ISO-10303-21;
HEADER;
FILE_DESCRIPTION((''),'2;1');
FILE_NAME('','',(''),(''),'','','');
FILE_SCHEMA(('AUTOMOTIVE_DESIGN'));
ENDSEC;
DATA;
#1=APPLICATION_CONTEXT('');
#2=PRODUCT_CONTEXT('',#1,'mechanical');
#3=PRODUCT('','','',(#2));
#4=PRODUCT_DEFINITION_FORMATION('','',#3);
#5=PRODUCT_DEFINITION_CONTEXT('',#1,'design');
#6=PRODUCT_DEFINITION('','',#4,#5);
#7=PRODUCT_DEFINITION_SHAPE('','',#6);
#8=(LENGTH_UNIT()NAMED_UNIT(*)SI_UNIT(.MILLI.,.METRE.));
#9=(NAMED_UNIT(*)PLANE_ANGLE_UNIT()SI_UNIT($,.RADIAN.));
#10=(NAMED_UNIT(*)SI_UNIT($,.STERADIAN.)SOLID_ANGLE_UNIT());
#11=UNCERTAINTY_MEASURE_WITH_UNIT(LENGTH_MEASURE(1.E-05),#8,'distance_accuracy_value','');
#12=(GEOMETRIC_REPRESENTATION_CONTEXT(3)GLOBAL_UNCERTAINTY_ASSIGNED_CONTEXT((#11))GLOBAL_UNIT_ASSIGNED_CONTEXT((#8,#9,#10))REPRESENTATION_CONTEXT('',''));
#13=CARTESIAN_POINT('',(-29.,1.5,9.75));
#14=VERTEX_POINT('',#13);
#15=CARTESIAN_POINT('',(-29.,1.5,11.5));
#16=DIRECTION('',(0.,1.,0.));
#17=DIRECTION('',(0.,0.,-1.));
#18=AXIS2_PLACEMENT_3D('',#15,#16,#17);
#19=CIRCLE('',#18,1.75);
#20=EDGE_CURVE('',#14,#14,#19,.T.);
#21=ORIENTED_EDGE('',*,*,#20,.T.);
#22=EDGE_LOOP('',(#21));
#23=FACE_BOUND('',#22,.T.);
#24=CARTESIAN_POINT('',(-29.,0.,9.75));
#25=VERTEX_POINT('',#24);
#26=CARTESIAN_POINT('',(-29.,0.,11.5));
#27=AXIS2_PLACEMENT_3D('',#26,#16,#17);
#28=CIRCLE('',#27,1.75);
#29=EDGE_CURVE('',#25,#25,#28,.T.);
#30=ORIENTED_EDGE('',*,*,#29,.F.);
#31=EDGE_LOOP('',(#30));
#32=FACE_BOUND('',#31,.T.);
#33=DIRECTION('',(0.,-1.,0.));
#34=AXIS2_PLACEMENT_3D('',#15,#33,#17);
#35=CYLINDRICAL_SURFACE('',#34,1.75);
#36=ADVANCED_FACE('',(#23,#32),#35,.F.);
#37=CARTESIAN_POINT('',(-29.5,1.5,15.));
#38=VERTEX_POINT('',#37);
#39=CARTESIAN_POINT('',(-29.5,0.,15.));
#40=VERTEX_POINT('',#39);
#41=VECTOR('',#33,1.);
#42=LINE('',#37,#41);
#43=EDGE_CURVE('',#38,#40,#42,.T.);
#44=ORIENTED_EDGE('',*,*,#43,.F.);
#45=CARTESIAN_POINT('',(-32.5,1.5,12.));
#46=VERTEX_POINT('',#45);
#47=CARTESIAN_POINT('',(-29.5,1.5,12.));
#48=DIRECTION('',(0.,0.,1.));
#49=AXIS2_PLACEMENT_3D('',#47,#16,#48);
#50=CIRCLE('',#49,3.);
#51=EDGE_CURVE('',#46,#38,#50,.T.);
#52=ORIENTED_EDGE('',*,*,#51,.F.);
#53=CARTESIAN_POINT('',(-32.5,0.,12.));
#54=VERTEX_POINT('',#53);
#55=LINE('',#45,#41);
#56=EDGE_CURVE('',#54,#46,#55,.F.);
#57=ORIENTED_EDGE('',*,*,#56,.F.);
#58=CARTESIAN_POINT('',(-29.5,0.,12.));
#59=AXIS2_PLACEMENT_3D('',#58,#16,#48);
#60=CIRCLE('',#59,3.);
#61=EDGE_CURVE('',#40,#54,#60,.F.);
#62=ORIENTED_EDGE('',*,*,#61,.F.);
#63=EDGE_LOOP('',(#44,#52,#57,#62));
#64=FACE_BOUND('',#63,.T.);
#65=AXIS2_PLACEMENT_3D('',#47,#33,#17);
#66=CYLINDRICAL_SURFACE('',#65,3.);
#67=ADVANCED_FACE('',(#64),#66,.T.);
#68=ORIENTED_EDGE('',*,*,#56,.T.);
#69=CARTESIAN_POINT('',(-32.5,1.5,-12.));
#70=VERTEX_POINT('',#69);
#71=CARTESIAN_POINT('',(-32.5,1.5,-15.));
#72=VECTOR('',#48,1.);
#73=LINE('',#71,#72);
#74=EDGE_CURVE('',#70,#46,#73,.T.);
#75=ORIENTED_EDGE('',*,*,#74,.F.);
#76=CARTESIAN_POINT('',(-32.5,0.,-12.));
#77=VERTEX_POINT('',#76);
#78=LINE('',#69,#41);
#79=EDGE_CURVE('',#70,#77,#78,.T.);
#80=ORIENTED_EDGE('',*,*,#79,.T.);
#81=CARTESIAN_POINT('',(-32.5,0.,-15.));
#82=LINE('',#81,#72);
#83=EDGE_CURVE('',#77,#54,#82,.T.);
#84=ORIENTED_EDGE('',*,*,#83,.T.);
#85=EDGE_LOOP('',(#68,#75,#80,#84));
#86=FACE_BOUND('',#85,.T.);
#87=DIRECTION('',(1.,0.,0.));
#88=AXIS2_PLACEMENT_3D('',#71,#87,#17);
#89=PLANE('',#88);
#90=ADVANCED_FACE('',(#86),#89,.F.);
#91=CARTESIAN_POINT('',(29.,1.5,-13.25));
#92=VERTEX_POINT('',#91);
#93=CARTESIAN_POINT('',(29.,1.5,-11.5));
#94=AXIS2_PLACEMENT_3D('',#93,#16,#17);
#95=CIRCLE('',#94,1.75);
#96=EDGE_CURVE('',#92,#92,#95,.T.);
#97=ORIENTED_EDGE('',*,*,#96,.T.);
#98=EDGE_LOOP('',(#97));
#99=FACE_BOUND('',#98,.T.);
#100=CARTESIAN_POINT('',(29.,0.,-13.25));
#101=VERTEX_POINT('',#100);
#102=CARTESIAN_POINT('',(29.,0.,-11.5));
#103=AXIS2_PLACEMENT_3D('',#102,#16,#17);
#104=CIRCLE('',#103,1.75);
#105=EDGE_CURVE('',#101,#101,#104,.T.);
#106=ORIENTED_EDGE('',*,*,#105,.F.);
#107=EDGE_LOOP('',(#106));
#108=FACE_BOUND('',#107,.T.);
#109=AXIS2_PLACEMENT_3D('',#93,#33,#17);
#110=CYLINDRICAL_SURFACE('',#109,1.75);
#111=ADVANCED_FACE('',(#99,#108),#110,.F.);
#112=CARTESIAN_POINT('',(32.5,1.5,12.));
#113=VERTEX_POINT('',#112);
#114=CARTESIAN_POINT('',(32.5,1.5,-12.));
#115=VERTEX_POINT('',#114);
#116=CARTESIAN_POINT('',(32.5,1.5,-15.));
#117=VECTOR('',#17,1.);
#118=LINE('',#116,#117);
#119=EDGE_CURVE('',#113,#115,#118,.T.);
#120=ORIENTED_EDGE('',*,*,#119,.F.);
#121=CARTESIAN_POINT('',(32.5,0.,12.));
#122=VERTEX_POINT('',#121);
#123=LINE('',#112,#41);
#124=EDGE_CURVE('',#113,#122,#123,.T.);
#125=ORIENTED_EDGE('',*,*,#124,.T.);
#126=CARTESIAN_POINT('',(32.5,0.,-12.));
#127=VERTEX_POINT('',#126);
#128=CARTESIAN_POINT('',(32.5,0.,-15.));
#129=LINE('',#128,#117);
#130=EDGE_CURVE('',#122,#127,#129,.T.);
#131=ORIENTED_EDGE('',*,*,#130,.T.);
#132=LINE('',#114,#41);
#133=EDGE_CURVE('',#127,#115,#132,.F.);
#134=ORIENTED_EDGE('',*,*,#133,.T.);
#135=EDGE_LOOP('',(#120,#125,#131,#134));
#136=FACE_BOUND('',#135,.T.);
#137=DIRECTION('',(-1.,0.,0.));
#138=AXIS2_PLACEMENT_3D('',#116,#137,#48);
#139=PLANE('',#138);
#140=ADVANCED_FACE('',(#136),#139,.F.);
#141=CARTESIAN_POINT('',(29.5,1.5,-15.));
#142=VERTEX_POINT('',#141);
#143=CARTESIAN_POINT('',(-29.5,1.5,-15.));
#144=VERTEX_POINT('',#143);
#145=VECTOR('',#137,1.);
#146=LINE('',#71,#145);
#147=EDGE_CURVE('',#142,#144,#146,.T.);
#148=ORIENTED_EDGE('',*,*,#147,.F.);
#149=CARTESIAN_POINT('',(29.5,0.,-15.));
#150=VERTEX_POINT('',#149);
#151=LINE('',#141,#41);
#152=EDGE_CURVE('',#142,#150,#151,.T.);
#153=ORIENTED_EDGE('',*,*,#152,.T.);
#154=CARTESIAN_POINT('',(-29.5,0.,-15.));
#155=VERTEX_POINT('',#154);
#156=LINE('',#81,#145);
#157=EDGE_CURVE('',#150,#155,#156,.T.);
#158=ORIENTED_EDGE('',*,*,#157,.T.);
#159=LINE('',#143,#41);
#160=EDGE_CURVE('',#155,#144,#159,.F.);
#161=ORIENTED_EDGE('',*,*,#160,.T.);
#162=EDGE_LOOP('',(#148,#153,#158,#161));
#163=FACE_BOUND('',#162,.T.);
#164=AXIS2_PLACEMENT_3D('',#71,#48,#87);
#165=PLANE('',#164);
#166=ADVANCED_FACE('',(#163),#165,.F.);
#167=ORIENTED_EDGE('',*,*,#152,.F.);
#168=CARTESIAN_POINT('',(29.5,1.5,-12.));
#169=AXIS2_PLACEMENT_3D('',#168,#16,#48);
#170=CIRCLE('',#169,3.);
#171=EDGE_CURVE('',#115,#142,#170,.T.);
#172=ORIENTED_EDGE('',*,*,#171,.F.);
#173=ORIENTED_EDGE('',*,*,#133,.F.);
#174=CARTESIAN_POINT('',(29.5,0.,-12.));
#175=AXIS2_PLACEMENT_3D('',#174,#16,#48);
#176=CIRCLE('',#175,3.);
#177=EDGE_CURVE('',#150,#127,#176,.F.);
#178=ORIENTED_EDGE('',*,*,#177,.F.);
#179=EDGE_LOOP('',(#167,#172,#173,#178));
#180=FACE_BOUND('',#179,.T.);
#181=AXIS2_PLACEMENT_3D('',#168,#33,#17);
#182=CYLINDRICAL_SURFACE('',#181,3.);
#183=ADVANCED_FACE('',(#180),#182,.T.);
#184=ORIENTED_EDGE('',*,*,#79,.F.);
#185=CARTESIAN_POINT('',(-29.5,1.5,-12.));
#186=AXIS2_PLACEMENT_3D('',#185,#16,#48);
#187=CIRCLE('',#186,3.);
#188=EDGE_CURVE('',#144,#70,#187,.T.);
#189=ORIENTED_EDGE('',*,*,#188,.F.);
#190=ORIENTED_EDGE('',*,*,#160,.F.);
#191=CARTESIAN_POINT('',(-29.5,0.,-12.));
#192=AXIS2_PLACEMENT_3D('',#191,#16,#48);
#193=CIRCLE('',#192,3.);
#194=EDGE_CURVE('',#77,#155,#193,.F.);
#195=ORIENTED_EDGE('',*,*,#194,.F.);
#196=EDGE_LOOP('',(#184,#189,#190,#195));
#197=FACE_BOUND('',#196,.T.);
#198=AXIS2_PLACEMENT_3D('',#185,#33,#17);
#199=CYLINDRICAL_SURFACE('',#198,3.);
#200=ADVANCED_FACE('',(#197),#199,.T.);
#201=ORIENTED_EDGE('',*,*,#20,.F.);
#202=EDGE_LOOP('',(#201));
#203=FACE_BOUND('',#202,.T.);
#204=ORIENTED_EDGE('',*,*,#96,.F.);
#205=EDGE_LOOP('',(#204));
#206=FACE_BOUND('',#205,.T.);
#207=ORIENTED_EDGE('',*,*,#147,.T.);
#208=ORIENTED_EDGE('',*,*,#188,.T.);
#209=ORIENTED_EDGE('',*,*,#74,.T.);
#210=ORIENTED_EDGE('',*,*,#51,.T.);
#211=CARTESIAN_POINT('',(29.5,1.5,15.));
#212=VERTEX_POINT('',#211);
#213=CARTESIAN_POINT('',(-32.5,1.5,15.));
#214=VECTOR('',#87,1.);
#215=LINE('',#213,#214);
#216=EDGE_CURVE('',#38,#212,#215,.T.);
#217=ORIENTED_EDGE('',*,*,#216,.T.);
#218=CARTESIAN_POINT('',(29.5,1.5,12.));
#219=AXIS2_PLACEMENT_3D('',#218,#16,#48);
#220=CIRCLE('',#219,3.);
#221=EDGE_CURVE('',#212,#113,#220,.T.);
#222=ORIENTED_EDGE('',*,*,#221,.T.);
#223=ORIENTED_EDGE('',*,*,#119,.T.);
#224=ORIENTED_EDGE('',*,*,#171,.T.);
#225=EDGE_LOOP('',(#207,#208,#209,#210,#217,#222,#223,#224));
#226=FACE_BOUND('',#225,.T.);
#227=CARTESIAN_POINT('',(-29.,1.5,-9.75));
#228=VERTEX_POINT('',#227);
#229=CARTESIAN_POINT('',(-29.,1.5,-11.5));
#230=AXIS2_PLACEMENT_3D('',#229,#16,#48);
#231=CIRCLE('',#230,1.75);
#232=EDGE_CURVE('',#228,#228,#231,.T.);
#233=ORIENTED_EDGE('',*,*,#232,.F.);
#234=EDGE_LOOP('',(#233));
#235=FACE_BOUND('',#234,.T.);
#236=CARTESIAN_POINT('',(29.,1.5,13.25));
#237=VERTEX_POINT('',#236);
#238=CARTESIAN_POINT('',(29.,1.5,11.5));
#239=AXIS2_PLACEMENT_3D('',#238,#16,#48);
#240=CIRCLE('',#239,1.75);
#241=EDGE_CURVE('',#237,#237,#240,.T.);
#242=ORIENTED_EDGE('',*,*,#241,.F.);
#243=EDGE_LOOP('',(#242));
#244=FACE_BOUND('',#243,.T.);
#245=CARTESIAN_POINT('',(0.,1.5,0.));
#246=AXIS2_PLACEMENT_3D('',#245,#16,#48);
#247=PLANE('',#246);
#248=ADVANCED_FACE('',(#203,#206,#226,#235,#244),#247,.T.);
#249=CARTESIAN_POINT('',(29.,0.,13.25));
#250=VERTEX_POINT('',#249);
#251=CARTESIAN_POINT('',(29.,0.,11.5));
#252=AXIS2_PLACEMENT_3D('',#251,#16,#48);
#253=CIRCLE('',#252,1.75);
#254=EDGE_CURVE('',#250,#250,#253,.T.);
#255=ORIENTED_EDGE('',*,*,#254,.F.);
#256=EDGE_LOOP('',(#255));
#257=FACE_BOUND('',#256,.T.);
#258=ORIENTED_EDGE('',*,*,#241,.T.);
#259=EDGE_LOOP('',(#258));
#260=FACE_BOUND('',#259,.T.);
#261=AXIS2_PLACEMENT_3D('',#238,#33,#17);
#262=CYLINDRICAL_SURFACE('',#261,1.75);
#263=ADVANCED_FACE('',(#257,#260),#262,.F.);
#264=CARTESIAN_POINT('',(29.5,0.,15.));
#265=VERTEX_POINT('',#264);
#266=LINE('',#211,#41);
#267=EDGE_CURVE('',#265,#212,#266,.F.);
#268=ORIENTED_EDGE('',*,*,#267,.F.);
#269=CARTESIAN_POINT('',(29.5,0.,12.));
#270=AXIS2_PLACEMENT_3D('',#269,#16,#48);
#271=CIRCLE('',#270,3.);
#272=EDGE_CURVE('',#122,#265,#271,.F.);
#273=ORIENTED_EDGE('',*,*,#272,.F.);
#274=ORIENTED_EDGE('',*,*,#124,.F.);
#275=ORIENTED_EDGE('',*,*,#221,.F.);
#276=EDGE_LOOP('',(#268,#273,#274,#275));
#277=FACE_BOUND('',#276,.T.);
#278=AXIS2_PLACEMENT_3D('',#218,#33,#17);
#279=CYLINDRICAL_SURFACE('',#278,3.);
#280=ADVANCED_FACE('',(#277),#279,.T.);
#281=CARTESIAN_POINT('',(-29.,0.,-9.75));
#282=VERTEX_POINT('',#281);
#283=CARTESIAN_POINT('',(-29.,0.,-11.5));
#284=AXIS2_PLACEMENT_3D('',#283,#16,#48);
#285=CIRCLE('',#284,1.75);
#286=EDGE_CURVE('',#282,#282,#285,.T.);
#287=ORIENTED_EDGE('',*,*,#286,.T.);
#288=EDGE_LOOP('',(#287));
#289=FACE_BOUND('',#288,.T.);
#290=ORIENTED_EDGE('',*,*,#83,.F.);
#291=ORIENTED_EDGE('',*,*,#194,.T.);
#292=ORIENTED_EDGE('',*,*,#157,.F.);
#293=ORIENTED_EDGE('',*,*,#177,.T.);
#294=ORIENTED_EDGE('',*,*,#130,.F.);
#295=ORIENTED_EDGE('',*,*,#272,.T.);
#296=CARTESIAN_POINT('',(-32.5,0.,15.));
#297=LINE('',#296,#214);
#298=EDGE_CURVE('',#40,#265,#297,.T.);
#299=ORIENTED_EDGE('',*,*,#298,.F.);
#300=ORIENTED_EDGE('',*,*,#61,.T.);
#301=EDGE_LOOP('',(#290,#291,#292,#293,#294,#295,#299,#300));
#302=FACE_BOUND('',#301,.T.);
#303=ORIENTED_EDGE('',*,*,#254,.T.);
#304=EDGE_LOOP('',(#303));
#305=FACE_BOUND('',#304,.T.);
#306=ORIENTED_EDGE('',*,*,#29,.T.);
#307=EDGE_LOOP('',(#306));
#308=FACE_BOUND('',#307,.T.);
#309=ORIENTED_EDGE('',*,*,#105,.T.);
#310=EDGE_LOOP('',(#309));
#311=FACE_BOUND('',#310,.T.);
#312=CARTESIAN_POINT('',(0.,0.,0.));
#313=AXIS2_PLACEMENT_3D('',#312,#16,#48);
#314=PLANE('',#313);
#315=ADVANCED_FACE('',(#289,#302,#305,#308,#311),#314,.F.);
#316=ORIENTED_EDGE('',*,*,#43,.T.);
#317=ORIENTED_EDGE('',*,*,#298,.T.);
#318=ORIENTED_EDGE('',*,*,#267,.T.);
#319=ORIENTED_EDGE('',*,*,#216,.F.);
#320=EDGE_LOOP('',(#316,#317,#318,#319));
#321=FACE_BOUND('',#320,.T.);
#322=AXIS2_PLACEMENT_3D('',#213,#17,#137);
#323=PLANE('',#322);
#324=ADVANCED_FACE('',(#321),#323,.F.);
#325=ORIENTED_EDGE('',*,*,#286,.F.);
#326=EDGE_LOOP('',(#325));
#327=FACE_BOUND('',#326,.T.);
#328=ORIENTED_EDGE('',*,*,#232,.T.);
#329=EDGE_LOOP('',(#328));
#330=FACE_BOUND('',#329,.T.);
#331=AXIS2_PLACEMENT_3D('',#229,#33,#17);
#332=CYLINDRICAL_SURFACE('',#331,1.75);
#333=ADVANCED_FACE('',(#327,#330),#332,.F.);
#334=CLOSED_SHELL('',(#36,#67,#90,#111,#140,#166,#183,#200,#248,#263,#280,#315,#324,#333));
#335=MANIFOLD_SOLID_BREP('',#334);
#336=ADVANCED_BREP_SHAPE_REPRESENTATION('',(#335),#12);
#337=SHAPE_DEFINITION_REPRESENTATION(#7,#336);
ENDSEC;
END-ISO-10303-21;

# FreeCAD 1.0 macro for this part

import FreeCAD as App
import Part
import Sketcher


def edges_at(feature, points):
    """Names of the edges that pass closest to the given points."""
    edges = feature.Shape.Edges
    near = lambda p: min(range(len(edges)), key=lambda i: edges[i].distToShape(Part.Vertex(*p))[0])
    return sorted({f"Edge{near(p) + 1}" for p in points})

doc = App.newDocument("Part")
params = doc.addObject("Spreadsheet::Sheet", "Params")
for row, (alias, value) in enumerate([
    ("sketch1_diameter", "3.5 mm"),
    ("sketch1_width", "65 mm"),
    ("sketch1_height", "30 mm"),
    ("pad1_length", "1.5 mm"),
    ("fillet_radius", "3 mm"),
], start=1):
    params.set(f"A{row}", alias)
    params.set(f"B{row}", "=" + value)
    params.setAlias(f"B{row}", alias)

body = doc.addObject("PartDesign::Body", "Body")

# Sketch on XZ plane
sketch1 = body.newObject("Sketcher::SketchObject", "Sketch")
sketch1.AttachmentSupport = (doc.getObject("XZ_Plane"), [""])
sketch1.MapMode = "FlatFace"
sketch1.addGeometry(Part.LineSegment(App.Vector(-32.5, -15, 0), App.Vector(-32.5, 15, 0)), False)
sketch1.addGeometry(Part.LineSegment(App.Vector(-32.5, 15, 0), App.Vector(32.5, 15, 0)), False)
sketch1.addGeometry(Part.LineSegment(App.Vector(32.5, 15, 0), App.Vector(32.5, -15, 0)), False)
sketch1.addGeometry(Part.LineSegment(App.Vector(32.5, -15, 0), App.Vector(-32.5, -15, 0)), False)
sketch1.addGeometry(Part.Circle(App.Vector(-29, 11.5, 0), App.Vector(0, 0, 1), 1.8), False)
sketch1.addGeometry(Part.Circle(App.Vector(29, 11.5, 0), App.Vector(0, 0, 1), 1.8), False)
sketch1.addGeometry(Part.Circle(App.Vector(-29, -11.5, 0), App.Vector(0, 0, 1), 1.8), False)
sketch1.addGeometry(Part.Circle(App.Vector(29, -11.5, 0), App.Vector(0, 0, 1), 1.8), False)
sketch1.addConstraint(Sketcher.Constraint("Coincident", 0, 2, 1, 1))
sketch1.addConstraint(Sketcher.Constraint("Coincident", 1, 2, 2, 1))
sketch1.addConstraint(Sketcher.Constraint("Coincident", 2, 2, 3, 1))
sketch1.addConstraint(Sketcher.Constraint("Coincident", 3, 2, 0, 1))
sketch1.addConstraint(Sketcher.Constraint("Vertical", 0))
sketch1.addConstraint(Sketcher.Constraint("Horizontal", 1))
sketch1.addConstraint(Sketcher.Constraint("Vertical", 2))
sketch1.addConstraint(Sketcher.Constraint("Horizontal", 3))
sketch1.addConstraint(Sketcher.Constraint("Equal", 4, 5))
sketch1.addConstraint(Sketcher.Constraint("Equal", 5, 6))
sketch1.addConstraint(Sketcher.Constraint("Equal", 6, 7))
sketch1.addConstraint(Sketcher.Constraint("Symmetric", 5, 3, 6, 3, -1, 1))
sketch1.addConstraint(Sketcher.Constraint("Symmetric", 4, 3, 7, 3, -1, 1))
sketch1.addConstraint(Sketcher.Constraint("Symmetric", 0, 2, 2, 2, -1, 1))
sketch1.addConstraint(Sketcher.Constraint("Symmetric", 4, 3, 5, 3, -2))
sketch1.addConstraint(Sketcher.Constraint("Diameter", 4, 3.5))
sketch1.addConstraint(Sketcher.Constraint("DistanceX", 1, 1, 1, 2, 65.0))
sketch1.addConstraint(Sketcher.Constraint("DistanceY", 0, 1, 0, 2, 30.0))
sketch1.addConstraint(Sketcher.Constraint("DistanceX", 4, 3, -1, 1, 29.0))
sketch1.addConstraint(Sketcher.Constraint("DistanceY", 6, 3, 4, 3, 23.0))
sketch1.setExpression("Constraints[15]", "Params.sketch1_diameter")
sketch1.setExpression("Constraints[16]", "Params.sketch1_width")
sketch1.setExpression("Constraints[17]", "Params.sketch1_height")
pad1 = body.newObject("PartDesign::Pad", "Pad")
pad1.Profile = sketch1
pad1.setExpression("Length", "Params.pad1_length")
pad1.Reversed = True
doc.recompute()

fillet = body.newObject("PartDesign::Fillet", "Fillet")
fillet.Base = (pad1, edges_at(pad1, [
    (32.5, 0.75, 15),
    (-32.5, 0.75, 15),
    (-32.5, 0.75, -15),
    (32.5, 0.75, -15),
]))
fillet.setExpression("Radius", "Params.fillet_radius")

doc.recompute()
